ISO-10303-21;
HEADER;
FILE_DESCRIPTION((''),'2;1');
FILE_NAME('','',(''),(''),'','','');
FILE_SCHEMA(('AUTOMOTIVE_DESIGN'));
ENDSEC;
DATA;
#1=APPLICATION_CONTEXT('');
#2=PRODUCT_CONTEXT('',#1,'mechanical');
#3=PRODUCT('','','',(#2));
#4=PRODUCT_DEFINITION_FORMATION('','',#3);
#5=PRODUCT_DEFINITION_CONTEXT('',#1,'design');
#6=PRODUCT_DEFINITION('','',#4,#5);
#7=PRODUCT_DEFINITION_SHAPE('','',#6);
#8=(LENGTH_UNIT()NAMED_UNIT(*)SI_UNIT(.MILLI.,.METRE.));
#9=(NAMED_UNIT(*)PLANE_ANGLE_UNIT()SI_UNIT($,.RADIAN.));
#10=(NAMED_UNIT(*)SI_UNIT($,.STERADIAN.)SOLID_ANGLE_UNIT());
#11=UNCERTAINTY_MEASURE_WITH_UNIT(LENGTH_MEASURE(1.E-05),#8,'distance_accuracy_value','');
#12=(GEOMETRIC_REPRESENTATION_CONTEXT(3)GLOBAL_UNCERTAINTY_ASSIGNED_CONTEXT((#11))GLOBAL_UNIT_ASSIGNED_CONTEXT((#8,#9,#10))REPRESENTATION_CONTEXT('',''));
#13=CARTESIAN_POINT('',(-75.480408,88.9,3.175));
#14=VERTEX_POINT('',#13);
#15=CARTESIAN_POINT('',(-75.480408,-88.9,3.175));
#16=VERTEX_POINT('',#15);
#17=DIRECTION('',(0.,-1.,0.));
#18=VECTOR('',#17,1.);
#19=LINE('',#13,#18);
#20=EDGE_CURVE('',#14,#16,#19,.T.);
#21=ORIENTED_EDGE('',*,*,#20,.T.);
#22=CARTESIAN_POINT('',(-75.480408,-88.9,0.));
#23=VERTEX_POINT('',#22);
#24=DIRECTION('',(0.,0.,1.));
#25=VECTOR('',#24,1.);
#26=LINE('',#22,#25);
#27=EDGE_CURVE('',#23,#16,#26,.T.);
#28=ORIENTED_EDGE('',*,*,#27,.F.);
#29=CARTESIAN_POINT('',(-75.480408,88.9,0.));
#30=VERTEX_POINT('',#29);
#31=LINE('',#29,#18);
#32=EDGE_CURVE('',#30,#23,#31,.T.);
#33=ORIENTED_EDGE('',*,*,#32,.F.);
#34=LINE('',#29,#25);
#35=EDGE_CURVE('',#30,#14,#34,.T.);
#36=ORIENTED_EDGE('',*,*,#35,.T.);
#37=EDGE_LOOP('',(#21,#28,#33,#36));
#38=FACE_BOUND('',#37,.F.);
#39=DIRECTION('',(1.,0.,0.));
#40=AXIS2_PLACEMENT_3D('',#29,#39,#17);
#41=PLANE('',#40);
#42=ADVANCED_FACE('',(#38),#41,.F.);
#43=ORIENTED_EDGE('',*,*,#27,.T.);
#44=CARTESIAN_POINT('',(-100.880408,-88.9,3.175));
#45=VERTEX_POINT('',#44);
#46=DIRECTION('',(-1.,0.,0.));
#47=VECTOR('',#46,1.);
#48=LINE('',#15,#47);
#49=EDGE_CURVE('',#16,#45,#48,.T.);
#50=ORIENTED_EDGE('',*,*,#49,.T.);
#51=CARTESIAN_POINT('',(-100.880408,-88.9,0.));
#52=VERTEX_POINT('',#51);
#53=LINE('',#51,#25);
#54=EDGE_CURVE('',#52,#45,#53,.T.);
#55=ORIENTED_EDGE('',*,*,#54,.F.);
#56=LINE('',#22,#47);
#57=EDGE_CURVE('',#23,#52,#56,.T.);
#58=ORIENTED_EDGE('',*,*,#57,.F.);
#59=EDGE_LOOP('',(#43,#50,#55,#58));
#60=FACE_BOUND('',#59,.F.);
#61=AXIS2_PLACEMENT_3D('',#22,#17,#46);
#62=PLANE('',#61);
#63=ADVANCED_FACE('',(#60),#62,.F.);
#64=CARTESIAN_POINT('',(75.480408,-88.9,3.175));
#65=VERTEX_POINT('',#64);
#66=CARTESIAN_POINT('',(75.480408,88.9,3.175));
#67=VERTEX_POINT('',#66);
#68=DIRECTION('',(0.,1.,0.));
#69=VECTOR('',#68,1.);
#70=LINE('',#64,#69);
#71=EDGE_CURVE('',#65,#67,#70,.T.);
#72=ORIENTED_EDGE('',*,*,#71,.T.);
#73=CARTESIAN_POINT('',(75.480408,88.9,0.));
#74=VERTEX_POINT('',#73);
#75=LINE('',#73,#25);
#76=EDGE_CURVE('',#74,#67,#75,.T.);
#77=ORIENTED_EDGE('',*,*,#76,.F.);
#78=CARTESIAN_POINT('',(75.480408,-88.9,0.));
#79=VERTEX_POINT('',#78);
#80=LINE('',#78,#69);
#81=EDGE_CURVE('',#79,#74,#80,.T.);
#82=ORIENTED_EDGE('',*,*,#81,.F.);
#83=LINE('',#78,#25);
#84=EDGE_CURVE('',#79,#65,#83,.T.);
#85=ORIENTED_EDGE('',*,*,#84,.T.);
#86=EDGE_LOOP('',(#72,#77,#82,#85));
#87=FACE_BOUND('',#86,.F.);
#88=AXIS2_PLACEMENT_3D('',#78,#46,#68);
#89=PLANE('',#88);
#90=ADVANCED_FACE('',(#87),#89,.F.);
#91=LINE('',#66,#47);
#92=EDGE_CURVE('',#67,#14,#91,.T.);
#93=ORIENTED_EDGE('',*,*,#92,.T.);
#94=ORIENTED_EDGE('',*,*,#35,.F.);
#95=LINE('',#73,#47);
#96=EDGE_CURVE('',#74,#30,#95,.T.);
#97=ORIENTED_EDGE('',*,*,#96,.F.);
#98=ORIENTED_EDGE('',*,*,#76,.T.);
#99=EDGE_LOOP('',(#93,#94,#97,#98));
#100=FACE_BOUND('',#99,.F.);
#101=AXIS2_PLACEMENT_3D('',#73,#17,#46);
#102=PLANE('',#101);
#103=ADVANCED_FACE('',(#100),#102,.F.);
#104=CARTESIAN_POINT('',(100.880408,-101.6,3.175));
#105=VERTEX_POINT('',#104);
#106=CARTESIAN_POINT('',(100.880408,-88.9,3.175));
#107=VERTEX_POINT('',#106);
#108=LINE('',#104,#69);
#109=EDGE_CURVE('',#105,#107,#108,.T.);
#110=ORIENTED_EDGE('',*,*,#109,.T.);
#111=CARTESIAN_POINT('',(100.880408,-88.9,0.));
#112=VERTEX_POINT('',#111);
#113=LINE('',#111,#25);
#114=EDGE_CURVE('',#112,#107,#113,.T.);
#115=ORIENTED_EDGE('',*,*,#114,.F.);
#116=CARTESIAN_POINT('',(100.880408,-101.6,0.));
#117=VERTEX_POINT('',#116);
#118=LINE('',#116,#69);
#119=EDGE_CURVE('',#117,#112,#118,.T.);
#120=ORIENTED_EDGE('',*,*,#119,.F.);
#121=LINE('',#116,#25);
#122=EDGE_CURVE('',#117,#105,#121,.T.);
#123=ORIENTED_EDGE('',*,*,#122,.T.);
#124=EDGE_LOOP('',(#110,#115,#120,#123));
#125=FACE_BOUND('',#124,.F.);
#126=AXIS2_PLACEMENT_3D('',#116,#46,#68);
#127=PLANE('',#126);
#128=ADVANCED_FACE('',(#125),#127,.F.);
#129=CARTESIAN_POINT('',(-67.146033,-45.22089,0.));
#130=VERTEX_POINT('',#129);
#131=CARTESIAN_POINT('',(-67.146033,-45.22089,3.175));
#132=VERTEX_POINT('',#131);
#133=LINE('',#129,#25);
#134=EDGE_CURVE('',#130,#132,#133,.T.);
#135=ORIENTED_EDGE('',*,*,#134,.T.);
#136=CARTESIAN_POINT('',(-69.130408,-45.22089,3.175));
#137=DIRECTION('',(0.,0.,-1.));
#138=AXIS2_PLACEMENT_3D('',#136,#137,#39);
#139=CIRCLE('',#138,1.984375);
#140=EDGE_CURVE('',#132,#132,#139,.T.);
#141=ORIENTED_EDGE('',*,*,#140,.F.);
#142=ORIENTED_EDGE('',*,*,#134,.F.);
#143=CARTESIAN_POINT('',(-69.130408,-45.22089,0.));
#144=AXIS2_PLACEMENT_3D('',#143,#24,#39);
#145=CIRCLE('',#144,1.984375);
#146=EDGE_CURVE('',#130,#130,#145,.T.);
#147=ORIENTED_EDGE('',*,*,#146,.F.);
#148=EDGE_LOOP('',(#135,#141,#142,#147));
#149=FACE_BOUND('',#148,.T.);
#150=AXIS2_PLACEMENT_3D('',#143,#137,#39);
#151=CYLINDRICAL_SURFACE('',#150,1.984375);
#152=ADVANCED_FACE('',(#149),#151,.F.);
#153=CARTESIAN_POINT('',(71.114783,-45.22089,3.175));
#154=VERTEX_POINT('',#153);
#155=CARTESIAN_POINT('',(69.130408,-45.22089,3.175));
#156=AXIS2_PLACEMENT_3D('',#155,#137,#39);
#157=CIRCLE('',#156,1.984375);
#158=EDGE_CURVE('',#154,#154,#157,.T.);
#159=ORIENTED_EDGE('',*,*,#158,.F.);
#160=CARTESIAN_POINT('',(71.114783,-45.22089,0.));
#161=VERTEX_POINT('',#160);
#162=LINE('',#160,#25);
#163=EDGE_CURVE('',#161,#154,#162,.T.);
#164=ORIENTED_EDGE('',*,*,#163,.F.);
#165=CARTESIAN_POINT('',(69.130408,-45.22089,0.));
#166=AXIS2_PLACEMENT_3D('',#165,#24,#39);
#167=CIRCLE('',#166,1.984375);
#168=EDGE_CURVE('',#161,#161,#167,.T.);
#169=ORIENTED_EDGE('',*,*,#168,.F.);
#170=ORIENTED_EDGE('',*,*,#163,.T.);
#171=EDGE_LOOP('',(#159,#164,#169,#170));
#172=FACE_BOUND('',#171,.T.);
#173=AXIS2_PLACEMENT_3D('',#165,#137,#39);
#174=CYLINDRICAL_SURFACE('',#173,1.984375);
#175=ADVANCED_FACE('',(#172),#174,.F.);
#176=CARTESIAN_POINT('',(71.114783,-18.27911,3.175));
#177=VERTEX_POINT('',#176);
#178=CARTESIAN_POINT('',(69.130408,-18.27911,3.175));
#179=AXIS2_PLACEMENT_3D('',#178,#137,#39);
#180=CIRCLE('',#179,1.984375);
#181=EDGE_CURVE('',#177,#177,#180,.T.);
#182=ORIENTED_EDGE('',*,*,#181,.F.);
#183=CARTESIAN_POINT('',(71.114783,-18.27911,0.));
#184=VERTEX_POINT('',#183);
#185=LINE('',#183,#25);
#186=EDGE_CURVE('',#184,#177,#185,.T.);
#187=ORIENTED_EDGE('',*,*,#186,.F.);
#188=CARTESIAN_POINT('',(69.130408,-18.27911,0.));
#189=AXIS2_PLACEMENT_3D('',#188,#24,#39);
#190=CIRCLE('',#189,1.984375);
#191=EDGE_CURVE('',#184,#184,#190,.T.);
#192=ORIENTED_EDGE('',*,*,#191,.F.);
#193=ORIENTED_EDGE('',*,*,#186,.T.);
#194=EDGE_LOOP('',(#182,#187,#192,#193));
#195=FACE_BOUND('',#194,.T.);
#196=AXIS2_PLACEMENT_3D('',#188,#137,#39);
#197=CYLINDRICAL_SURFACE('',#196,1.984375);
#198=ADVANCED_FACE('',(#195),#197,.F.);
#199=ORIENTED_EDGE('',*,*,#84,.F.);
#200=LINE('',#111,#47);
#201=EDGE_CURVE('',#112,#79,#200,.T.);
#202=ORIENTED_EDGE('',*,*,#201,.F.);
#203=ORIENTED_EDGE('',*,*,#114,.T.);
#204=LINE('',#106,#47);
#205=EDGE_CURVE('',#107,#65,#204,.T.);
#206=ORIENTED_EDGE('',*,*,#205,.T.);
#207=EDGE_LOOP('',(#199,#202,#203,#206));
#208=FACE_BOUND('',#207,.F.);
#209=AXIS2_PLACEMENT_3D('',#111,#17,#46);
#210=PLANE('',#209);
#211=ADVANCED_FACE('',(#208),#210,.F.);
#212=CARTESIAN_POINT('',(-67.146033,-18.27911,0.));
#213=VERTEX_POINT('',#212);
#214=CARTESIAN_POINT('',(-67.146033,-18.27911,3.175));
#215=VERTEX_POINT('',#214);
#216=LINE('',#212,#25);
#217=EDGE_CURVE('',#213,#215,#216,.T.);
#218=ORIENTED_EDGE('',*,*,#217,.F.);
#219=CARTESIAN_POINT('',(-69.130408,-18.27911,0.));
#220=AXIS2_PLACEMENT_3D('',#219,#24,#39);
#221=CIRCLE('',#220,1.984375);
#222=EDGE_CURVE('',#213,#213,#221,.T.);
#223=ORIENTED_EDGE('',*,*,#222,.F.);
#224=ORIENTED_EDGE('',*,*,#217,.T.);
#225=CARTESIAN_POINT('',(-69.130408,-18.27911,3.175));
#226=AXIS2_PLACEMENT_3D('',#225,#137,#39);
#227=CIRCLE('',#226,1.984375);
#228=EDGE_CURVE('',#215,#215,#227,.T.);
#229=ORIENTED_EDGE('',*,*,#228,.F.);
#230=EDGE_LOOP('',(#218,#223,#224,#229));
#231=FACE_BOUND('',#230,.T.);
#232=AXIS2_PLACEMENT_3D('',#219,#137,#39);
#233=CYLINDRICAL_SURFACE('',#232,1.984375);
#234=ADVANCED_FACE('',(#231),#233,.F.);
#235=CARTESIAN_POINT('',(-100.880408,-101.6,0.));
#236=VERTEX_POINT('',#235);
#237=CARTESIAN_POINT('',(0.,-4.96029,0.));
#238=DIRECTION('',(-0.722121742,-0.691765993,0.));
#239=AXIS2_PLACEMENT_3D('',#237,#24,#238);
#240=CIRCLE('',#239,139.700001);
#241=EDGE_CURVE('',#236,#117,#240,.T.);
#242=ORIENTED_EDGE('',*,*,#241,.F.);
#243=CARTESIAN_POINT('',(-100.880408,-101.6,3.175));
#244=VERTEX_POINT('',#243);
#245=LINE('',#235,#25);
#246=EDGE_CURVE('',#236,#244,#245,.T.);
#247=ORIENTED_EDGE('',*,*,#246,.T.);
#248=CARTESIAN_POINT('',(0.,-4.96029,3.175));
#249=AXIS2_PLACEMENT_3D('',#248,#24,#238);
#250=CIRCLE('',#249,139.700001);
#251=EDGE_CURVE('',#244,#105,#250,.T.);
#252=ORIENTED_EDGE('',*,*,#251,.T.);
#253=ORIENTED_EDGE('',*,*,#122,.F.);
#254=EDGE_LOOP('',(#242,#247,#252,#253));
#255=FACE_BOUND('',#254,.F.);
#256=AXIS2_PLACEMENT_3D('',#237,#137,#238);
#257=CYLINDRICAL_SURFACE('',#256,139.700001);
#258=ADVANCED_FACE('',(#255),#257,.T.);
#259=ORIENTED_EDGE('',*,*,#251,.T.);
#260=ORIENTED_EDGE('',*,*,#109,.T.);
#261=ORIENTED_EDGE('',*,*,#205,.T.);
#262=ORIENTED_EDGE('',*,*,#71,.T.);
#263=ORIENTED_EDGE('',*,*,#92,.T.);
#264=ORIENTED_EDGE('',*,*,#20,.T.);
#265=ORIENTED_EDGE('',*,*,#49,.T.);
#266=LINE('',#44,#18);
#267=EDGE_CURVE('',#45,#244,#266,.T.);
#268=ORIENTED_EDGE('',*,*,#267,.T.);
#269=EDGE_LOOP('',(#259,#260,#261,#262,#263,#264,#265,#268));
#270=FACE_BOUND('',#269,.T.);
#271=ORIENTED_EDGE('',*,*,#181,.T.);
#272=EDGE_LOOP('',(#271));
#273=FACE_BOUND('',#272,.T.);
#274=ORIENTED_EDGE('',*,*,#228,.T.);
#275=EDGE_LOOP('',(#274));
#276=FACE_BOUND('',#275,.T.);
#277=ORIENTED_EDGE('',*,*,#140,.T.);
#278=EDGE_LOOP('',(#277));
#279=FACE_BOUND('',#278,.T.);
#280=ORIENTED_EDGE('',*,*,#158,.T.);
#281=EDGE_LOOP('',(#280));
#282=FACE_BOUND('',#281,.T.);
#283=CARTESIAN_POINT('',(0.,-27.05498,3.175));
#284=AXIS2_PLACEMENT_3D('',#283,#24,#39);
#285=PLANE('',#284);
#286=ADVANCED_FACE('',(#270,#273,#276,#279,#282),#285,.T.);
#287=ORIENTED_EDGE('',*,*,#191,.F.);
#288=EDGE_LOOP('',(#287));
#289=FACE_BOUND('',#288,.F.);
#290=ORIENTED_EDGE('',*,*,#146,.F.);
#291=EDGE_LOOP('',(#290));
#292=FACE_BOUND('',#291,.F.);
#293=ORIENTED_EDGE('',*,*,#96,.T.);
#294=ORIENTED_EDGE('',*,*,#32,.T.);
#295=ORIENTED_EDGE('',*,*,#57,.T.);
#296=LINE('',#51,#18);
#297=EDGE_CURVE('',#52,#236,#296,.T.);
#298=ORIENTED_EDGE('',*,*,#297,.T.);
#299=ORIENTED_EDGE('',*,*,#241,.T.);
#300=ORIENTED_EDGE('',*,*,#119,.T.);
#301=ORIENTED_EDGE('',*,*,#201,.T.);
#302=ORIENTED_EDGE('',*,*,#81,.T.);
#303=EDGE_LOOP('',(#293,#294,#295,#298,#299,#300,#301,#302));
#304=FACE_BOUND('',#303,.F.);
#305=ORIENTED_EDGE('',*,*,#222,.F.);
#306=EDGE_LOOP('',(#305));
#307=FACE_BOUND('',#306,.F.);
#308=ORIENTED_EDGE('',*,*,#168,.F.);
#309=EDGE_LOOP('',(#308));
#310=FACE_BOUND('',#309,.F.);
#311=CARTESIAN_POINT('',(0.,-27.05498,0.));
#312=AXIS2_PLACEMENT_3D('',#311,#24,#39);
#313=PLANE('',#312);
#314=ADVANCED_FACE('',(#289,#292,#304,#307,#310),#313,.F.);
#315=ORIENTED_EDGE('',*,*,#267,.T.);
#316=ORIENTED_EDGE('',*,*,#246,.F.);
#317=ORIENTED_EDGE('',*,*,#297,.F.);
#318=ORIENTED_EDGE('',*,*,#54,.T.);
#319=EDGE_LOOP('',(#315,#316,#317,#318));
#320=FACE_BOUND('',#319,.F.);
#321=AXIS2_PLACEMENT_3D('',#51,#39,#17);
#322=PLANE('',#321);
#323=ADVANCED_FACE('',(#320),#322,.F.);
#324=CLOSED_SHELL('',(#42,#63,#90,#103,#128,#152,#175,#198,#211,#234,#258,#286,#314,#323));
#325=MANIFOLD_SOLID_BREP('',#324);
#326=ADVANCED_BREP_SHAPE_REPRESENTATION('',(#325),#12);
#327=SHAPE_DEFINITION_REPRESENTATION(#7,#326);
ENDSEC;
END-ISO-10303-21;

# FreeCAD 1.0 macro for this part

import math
import FreeCAD as App
import Part
import Sketcher
Q = App.Units.Quantity

doc = App.newDocument("Part")
body = doc.addObject("PartDesign::Body", "Body")

sketch1 = body.newObject("Sketcher::SketchObject", "Sketch")
sketch1.AttachmentSupport = (doc.getObject("XY_Plane"), [""])
sketch1.MapMode = "FlatFace"
sketch1.addGeometry(Part.LineSegment(App.Vector(75, 89, 0), App.Vector(-75, 89, 0)), False)
sketch1.addGeometry(Part.LineSegment(App.Vector(-75, 89, 0), App.Vector(-75, -89, 0)), False)
sketch1.addGeometry(Part.LineSegment(App.Vector(-75, -89, 0), App.Vector(-101, -89, 0)), False)
sketch1.addGeometry(Part.LineSegment(App.Vector(-101, -89, 0), App.Vector(-101, -102, 0)), False)
sketch1.addGeometry(Part.ArcOfCircle(Part.Circle(App.Vector(0, -5, 0), App.Vector(0, 0, 1), 140), math.radians(-136), math.radians(-44)), False)
sketch1.addGeometry(Part.LineSegment(App.Vector(101, -102, 0), App.Vector(101, -89, 0)), False)
sketch1.addGeometry(Part.LineSegment(App.Vector(101, -89, 0), App.Vector(75, -89, 0)), False)
sketch1.addGeometry(Part.LineSegment(App.Vector(75, -89, 0), App.Vector(75, 89, 0)), False)
sketch1.addConstraint(Sketcher.Constraint("Coincident", 0, 2, 1, 1))
sketch1.addConstraint(Sketcher.Constraint("Coincident", 1, 2, 2, 1))
sketch1.addConstraint(Sketcher.Constraint("Coincident", 2, 2, 3, 1))
sketch1.addConstraint(Sketcher.Constraint("Coincident", 3, 2, 4, 1))
sketch1.addConstraint(Sketcher.Constraint("Coincident", 4, 2, 5, 1))
sketch1.addConstraint(Sketcher.Constraint("Coincident", 5, 2, 6, 1))
sketch1.addConstraint(Sketcher.Constraint("Coincident", 6, 2, 7, 1))
sketch1.addConstraint(Sketcher.Constraint("Coincident", 7, 2, 0, 1))
sketch1.addConstraint(Sketcher.Constraint("Horizontal", 0))
sketch1.addConstraint(Sketcher.Constraint("Vertical", 1))
sketch1.addConstraint(Sketcher.Constraint("Horizontal", 2))
sketch1.addConstraint(Sketcher.Constraint("Vertical", 3))
sketch1.addConstraint(Sketcher.Constraint("Vertical", 5))
sketch1.addConstraint(Sketcher.Constraint("Horizontal", 6))
sketch1.addConstraint(Sketcher.Constraint("Vertical", 7))
sketch1.addConstraint(Sketcher.Constraint("Symmetric", 0, 2, 6, 2, -1, 1))
sketch1.addConstraint(Sketcher.Constraint("Symmetric", 3, 2, 4, 2, -2))
sketch1.addConstraint(Sketcher.Constraint("Horizontal", 2, 2, 5, 2))
sketch1.addConstraint(Sketcher.Constraint("Radius", 4, Q("5.5 in")))
sketch1.addConstraint(Sketcher.Constraint("DistanceX", 2, 2, 2, 1, Q("1 in")))
sketch1.addConstraint(Sketcher.Constraint("DistanceY", 1, 2, 1, 1, Q("7 in")))
sketch1.addConstraint(Sketcher.Constraint("DistanceY", 3, 2, 3, 1, Q("0.5 in")))
sketch1.addConstraint(Sketcher.Constraint("DistanceX", 0, 2, 0, 1, 150.960816))
pad1 = body.newObject("PartDesign::Pad", "Pad")
pad1.Profile = sketch1
pad1.Length = Q("0.125 in")

sketch2 = body.newObject("Sketcher::SketchObject", "Sketch001")
sketch2.AttachmentSupport = (doc.getObject("XY_Plane"), [""])
sketch2.MapMode = "FlatFace"
sketch2.addGeometry(Part.Circle(App.Vector(69.1, -45.2, 0), App.Vector(0, 0, 1), 2), False)
sketch2.addGeometry(Part.Circle(App.Vector(69.1, -18.3, 0), App.Vector(0, 0, 1), 2), False)
sketch2.addGeometry(Part.Circle(App.Vector(-69.1, -45.2, 0), App.Vector(0, 0, 1), 2), False)
sketch2.addGeometry(Part.Circle(App.Vector(-69.1, -18.3, 0), App.Vector(0, 0, 1), 2), False)
sketch2.addConstraint(Sketcher.Constraint("Equal", 0, 1))
sketch2.addConstraint(Sketcher.Constraint("Equal", 1, 2))
sketch2.addConstraint(Sketcher.Constraint("Equal", 2, 3))
sketch2.addConstraint(Sketcher.Constraint("Symmetric", 0, 3, 2, 3, -2))
sketch2.addConstraint(Sketcher.Constraint("Symmetric", 1, 3, 3, 3, -2))
sketch2.addConstraint(Sketcher.Constraint("Vertical", 0, 3, 1, 3))
sketch2.addConstraint(Sketcher.Constraint("Diameter", 0, Q("0.15625 in")))
sketch2.addConstraint(Sketcher.Constraint("DistanceY", 0, 3, 1, 3, Q("1.0607 in")))
sketch2.addConstraint(Sketcher.Constraint("DistanceX", -1, 1, 0, 3, 69.130408))
sketch2.addConstraint(Sketcher.Constraint("DistanceY", 0, 3, -1, 1, 45.22089))
pocket1 = body.newObject("PartDesign::Pocket", "Pocket")
pocket1.Profile = sketch2
pocket1.Type = "ThroughAll"
pocket1.Reversed = True

doc.recompute()
